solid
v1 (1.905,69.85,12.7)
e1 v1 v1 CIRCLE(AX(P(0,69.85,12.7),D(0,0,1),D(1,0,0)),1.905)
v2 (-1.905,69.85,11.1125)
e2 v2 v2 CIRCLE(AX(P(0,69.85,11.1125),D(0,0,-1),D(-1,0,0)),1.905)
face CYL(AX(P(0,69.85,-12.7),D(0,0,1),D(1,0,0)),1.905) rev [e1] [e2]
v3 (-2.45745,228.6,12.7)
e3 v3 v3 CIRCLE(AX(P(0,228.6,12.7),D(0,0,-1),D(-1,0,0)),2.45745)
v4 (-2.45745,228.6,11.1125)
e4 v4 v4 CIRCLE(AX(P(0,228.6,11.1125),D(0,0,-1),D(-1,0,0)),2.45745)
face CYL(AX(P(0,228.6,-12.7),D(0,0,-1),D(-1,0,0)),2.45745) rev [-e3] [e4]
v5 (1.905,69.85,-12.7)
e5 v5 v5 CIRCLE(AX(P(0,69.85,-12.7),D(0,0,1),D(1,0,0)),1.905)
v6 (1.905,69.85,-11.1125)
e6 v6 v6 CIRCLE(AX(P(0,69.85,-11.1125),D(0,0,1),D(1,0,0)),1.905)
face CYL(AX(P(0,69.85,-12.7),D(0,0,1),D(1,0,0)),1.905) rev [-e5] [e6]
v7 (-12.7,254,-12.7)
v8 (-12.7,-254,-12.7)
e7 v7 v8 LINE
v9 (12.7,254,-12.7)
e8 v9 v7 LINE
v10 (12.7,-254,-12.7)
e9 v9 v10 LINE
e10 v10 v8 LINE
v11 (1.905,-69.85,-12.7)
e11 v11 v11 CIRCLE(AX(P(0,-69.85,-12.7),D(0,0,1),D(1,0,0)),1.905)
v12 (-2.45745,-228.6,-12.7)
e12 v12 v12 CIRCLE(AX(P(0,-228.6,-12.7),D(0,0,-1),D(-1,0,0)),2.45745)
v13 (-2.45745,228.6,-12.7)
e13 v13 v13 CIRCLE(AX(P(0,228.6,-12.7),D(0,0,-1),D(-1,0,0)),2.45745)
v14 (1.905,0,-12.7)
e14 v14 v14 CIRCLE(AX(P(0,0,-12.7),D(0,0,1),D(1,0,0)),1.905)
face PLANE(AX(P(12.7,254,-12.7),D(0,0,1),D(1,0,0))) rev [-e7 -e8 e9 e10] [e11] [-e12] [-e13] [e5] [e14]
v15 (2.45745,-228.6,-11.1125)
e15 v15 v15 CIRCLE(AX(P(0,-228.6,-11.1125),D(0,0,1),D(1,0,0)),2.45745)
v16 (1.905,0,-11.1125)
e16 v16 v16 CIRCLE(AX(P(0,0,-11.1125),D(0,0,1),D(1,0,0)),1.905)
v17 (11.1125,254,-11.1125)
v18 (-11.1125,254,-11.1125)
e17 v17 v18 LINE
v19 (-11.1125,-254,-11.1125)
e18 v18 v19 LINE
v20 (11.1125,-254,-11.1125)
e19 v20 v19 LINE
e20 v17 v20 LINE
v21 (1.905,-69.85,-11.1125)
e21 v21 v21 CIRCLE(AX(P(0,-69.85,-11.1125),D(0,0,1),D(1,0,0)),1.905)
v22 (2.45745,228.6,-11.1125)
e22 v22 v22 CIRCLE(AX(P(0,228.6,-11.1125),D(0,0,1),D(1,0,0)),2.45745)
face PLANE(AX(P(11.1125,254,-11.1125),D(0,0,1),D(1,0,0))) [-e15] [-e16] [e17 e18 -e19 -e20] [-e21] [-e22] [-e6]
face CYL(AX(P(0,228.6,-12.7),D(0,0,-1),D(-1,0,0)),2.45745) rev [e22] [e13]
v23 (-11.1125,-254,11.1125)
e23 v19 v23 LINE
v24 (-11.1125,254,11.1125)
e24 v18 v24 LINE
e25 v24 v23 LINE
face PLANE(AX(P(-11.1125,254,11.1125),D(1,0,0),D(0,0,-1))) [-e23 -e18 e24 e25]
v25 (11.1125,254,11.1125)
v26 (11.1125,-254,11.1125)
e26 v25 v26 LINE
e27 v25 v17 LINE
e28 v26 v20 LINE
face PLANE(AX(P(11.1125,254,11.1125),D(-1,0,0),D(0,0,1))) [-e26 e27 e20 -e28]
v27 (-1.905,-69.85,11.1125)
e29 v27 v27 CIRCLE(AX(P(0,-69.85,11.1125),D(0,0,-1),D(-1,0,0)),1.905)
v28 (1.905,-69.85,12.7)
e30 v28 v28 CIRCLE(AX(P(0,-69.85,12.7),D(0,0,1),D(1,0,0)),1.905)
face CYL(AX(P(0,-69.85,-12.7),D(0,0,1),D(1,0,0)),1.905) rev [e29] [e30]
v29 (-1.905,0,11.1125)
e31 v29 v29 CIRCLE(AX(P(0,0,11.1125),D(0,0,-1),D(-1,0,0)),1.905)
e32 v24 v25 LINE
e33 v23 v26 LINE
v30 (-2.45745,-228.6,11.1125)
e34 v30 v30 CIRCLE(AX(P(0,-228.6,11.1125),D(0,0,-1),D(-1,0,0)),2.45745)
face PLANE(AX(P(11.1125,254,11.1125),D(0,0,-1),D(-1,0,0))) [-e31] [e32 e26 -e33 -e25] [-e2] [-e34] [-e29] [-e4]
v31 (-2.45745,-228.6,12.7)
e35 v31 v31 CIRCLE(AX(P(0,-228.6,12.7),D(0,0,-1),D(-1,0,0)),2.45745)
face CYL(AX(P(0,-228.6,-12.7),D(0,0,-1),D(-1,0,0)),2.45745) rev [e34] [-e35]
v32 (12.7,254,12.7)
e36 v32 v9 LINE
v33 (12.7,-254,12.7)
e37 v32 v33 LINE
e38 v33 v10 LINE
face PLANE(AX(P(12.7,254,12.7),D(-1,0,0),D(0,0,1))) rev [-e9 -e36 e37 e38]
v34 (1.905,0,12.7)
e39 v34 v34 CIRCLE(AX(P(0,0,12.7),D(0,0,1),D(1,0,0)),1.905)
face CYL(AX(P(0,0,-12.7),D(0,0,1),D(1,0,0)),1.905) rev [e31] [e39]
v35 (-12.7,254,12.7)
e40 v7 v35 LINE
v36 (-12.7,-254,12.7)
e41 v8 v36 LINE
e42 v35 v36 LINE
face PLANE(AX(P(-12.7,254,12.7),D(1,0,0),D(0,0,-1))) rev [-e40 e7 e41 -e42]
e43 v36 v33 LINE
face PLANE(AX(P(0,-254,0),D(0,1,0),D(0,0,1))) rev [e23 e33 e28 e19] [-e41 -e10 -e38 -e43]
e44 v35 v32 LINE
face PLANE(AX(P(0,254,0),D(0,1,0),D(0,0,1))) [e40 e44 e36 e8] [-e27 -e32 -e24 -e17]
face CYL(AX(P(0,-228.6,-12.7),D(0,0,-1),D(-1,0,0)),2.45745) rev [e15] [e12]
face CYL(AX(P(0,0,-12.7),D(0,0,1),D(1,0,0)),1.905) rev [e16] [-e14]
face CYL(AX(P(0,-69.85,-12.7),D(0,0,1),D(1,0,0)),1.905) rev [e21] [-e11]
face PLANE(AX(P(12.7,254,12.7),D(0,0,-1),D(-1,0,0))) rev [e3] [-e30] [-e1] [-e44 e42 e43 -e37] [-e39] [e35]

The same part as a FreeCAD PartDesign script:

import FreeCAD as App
import Part
import Sketcher
Q = App.Units.Quantity

doc = App.newDocument("Part")
params = doc.addObject("Spreadsheet::Sheet", "Params")
for row, (alias, value) in enumerate([
    ("sketch1_width", "1 in"),
    ("sketch1_width2", "0.875 in"),
    ("pad1_length", "20 in"),
    ("hole_diameter", "0.1935 in"),
    ("hole_depth", "2 in"),
    ("sketch3_diameter", "0.15 in"),
], start=1):
    params.set(f"A{row}", alias)
    params.set(f"B{row}", "=" + value)
    params.setAlias(f"B{row}", alias)

body = doc.addObject("PartDesign::Body", "Body")

sketch1 = body.newObject("Sketcher::SketchObject", "Sketch")
sketch1.AttachmentSupport = (doc.getObject("XZ_Plane"), [""])
sketch1.MapMode = "FlatFace"
sketch1.addGeometry([
    Part.LineSegment(App.Vector(-12.7, -12.7, 0), App.Vector(-12.7, 12.7, 0)),
    Part.LineSegment(App.Vector(-12.7, 12.7, 0), App.Vector(12.7, 12.7, 0)),
    Part.LineSegment(App.Vector(12.7, 12.7, 0), App.Vector(12.7, -12.7, 0)),
    Part.LineSegment(App.Vector(12.7, -12.7, 0), App.Vector(-12.7, -12.7, 0)),
    Part.LineSegment(App.Vector(11.1125, 11.1125, 0), App.Vector(-11.1125, 11.1125, 0)),
    Part.LineSegment(App.Vector(-11.1125, 11.1125, 0), App.Vector(-11.1125, -11.1125, 0)),
    Part.LineSegment(App.Vector(-11.1125, -11.1125, 0), App.Vector(11.1125, -11.1125, 0)),
    Part.LineSegment(App.Vector(11.1125, -11.1125, 0), App.Vector(11.1125, 11.1125, 0)),
], False)
sketch1.addConstraint([
    Sketcher.Constraint("Coincident", 0, 2, 1, 1),
    Sketcher.Constraint("Coincident", 1, 2, 2, 1),
    Sketcher.Constraint("Coincident", 2, 2, 3, 1),
    Sketcher.Constraint("Coincident", 3, 2, 0, 1),
    Sketcher.Constraint("Coincident", 4, 2, 5, 1),
    Sketcher.Constraint("Coincident", 5, 2, 6, 1),
    Sketcher.Constraint("Coincident", 6, 2, 7, 1),
    Sketcher.Constraint("Coincident", 7, 2, 4, 1),
    Sketcher.Constraint("Vertical", 0),
    Sketcher.Constraint("Horizontal", 1),
    Sketcher.Constraint("Vertical", 2),
    Sketcher.Constraint("Horizontal", 3),
    Sketcher.Constraint("Horizontal", 4),
    Sketcher.Constraint("Vertical", 5),
    Sketcher.Constraint("Horizontal", 6),
    Sketcher.Constraint("Vertical", 7),
    Sketcher.Constraint("Symmetric", 0, 2, 2, 2, -1, 1),
    Sketcher.Constraint("Symmetric", 4, 2, 6, 2, -1, 1),
    Sketcher.Constraint("Equal", 3, 0),
    Sketcher.Constraint("Equal", 6, 5),
    Sketcher.Constraint("DistanceX", 1, 1, 1, 2, Q("1 in")),
    Sketcher.Constraint("DistanceX", 4, 2, 4, 1, Q("0.875 in")),
])
sketch1.setExpression("Constraints[20]", "Params.sketch1_width")
sketch1.setExpression("Constraints[21]", "Params.sketch1_width2")
pad1 = body.newObject("PartDesign::Pad", "Pad")
pad1.Profile = sketch1
pad1.setExpression("Length", "Params.pad1_length")
pad1.Midplane = True

sketch2 = body.newObject("Sketcher::SketchObject", "Sketch001")
sketch2.AttachmentSupport = (doc.getObject("XY_Plane"), [""])
sketch2.MapMode = "FlatFace"
sketch2.AttachmentOffset = App.Placement(App.Vector(0, 0, -0.5 * 25.4), App.Rotation())
sketch2.addGeometry([
    Part.Circle(App.Vector(0, 228.6, 0), App.Vector(0, 0, 1), 2.45745),
    Part.Circle(App.Vector(0, -228.6, 0), App.Vector(0, 0, 1), 2.45745),
], False)
sketch2.addConstraint([
    Sketcher.Constraint("Equal", 0, 1),
    Sketcher.Constraint("Symmetric", 0, 3, 1, 3, -1, 1),
    Sketcher.Constraint("PointOnObject", 0, 3, -2),
    Sketcher.Constraint("DistanceY", -1, 1, 0, 3, Q("9 in")),
    Sketcher.Constraint("Diameter", 0, Q("0.1935 in")),
])
doc.recompute()
hole = body.newObject("PartDesign::Hole", "Hole")
hole.Profile = sketch2
hole.ThreadType = "None"
hole.setExpression("Diameter", "Params.hole_diameter")
hole.DepthType = "Dimension"
hole.setExpression("Depth", "Params.hole_depth")
hole.DrillPoint = "Angled"
hole.DrillPointAngle = 118
hole.Reversed = True

sketch3 = body.newObject("Sketcher::SketchObject", "Sketch002")
sketch3.AttachmentSupport = (doc.getObject("XY_Plane"), [""])
sketch3.MapMode = "FlatFace"
sketch3.AttachmentOffset = App.Placement(App.Vector(0, 0, 0.5 * 25.4), App.Rotation())
sketch3.addGeometry([
    Part.Circle(App.Vector(0, -69.85, 0), App.Vector(0, 0, 1), 1.905),
    Part.Circle(App.Vector(0, 0, 0), App.Vector(0, 0, 1), 1.905),
    Part.Circle(App.Vector(0, 69.85, 0), App.Vector(0, 0, 1), 1.905),
], False)
sketch3.addConstraint([
    Sketcher.Constraint("Coincident", 1, 3, -1, 1),
    Sketcher.Constraint("Equal", 0, 1),
    Sketcher.Constraint("Equal", 1, 2),
    Sketcher.Constraint("Symmetric", 0, 3, 2, 3, -1, 1),
    Sketcher.Constraint("PointOnObject", 0, 3, -2),
    Sketcher.Constraint("Diameter", 0, Q("0.15 in")),
    Sketcher.Constraint("DistanceY", 0, 3, 2, 3, Q("5.5 in")),
])
sketch3.setExpression("Constraints[5]", "Params.sketch3_diameter")
pocket1 = body.newObject("PartDesign::Pocket", "Pocket")
pocket1.Profile = sketch3
pocket1.Type = "ThroughAll"

doc.recompute()
